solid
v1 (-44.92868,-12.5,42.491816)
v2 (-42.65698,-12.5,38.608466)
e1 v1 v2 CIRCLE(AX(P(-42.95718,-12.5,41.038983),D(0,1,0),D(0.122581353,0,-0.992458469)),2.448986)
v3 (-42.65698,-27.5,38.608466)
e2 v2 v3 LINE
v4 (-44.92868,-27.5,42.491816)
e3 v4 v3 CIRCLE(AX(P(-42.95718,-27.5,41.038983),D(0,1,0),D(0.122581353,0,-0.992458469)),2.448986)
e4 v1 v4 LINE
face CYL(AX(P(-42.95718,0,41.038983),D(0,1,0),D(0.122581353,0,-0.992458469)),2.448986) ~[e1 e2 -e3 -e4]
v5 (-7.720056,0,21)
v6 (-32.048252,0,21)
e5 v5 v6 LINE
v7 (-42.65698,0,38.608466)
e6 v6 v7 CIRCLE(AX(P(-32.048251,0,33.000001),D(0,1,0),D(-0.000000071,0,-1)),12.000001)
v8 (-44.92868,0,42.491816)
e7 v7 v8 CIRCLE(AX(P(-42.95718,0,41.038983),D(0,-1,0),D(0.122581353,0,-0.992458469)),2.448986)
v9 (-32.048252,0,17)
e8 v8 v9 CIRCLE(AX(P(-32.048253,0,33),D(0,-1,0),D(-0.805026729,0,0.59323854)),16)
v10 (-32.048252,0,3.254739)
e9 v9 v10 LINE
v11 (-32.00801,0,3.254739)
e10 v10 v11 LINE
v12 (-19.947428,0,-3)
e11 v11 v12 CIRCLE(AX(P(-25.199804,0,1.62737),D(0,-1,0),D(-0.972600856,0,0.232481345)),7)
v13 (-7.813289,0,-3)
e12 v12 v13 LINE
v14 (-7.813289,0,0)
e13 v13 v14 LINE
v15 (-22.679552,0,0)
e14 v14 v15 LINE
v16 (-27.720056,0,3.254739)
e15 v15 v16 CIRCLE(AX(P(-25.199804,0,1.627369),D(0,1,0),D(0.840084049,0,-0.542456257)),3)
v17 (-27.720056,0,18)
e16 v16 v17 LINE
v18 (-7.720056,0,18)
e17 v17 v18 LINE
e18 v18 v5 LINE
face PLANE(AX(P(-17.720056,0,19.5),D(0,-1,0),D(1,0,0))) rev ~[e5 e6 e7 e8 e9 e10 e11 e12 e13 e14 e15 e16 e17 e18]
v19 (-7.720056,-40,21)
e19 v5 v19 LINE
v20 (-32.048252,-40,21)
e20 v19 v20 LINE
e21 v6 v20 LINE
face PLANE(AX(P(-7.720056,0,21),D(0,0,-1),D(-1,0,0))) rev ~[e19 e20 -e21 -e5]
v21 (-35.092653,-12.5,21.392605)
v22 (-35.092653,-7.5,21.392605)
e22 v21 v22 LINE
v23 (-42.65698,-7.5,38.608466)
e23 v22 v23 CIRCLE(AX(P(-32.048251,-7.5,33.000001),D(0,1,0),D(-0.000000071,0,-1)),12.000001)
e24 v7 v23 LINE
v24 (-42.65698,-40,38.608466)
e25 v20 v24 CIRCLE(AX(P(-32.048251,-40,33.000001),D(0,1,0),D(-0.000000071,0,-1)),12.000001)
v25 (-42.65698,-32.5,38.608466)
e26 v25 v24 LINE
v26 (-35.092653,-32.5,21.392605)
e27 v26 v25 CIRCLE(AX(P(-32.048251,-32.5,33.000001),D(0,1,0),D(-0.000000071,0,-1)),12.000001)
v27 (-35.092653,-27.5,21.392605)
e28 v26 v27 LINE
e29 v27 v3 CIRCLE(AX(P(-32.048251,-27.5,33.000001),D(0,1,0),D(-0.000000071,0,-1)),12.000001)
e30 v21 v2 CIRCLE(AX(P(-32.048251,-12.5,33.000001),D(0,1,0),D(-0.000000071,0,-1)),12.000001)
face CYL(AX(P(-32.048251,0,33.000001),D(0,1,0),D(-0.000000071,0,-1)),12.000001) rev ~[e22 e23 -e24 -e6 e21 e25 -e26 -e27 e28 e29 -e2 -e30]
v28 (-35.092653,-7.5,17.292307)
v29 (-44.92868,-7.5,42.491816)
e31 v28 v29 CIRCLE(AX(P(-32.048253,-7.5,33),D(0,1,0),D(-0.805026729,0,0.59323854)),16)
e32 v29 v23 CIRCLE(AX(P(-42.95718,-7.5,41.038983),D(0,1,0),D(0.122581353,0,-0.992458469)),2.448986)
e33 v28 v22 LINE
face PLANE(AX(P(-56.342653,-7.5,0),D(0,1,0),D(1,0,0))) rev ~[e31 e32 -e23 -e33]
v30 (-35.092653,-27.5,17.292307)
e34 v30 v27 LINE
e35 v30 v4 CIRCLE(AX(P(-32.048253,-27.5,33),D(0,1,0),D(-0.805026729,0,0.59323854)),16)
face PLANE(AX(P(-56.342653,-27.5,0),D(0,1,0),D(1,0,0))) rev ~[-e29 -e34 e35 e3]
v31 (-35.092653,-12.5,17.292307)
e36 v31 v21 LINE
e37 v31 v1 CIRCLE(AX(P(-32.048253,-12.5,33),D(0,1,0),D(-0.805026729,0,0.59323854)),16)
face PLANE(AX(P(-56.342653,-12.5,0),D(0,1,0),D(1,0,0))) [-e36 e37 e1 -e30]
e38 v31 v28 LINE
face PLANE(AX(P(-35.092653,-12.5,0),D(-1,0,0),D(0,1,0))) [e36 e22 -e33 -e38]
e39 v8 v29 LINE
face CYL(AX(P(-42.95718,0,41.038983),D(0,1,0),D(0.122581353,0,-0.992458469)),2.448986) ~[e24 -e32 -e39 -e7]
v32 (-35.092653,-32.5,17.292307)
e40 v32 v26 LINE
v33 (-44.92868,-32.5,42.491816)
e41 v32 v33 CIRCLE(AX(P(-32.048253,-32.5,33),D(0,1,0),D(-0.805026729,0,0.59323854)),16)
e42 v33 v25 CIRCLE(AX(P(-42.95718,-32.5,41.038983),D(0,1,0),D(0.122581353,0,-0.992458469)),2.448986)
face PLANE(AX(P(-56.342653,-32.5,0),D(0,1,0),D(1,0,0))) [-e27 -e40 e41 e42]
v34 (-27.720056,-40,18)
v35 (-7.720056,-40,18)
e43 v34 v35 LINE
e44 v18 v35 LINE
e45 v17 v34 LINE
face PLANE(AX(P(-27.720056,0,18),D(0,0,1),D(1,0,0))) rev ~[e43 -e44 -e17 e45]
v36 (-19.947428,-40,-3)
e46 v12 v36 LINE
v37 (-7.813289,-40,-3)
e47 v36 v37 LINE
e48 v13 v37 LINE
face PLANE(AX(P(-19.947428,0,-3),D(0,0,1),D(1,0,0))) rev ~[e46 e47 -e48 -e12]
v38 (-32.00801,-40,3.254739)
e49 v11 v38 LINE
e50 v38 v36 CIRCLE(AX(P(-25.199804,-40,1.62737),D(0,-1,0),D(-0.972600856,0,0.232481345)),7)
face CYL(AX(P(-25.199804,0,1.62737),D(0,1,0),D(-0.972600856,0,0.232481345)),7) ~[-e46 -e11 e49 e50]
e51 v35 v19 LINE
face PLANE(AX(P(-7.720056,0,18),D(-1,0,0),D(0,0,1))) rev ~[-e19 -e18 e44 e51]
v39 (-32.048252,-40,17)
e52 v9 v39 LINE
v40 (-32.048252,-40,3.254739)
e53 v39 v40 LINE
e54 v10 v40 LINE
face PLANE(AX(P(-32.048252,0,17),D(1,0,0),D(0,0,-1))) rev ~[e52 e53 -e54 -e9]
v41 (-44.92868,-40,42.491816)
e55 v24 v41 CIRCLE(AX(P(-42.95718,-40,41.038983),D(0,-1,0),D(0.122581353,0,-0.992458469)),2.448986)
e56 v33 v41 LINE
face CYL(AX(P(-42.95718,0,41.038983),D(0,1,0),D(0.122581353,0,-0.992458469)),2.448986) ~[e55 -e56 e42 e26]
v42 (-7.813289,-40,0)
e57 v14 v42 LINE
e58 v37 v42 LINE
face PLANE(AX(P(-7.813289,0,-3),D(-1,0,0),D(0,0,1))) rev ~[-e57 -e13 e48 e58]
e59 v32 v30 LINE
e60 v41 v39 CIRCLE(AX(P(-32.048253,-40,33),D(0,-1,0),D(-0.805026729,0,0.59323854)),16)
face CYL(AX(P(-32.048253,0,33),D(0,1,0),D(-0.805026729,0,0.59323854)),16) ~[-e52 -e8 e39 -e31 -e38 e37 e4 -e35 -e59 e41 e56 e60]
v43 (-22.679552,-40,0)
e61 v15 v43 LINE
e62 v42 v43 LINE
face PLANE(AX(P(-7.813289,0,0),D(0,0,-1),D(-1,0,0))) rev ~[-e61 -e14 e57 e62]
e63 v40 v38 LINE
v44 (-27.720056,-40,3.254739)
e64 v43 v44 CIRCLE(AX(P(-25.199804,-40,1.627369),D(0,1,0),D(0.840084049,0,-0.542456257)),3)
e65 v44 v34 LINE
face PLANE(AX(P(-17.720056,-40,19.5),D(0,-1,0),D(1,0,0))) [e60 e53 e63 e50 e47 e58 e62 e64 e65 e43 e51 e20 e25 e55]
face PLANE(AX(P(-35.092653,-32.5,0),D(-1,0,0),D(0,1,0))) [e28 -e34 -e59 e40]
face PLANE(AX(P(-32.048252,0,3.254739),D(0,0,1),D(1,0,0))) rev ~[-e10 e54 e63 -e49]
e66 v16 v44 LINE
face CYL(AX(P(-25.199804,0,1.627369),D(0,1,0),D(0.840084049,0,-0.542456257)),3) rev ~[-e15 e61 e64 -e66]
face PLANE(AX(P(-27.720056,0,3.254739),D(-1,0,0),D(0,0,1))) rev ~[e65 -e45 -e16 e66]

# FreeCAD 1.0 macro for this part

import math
import FreeCAD as App
import Part
import Sketcher
from FreeCAD import Vector

doc = App.newDocument("Part")
body = doc.addObject("PartDesign::Body", "Body")

sketch1 = body.newObject("Sketcher::SketchObject", "Sketch")
sketch1.AttachmentSupport = (doc.getObject("XZ_Plane"), [""])
sketch1.MapMode = "FlatFace"
sketch1.addGeometry(Part.LineSegment(Vector(-27.72, 18, 0), Vector(-7.72, 18, 0)), False)
sketch1.addGeometry(Part.LineSegment(Vector(-7.72, 18, 0), Vector(-7.72, 21, 0)), False)
sketch1.addGeometry(Part.LineSegment(Vector(-7.72, 21, 0), Vector(-32.048, 21, 0)), False)
sketch1.addGeometry(Part.ArcOfCircle(Part.Circle(Vector(-32.048, 33, 0), Vector(0, 0, 1), 12), math.radians(152), math.radians(270)), False)
sketch1.addGeometry(Part.ArcOfCircle(Part.Circle(Vector(-42.957, 41.039, 0), Vector(0, 0, 1), 2.449), math.radians(-83), math.radians(144)), False)
sketch1.addGeometry(Part.ArcOfCircle(Part.Circle(Vector(-32.048, 33, 0), Vector(0, 0, 1), 16), math.radians(144), math.radians(270)), False)
sketch1.addGeometry(Part.LineSegment(Vector(-32.048, 17, 0), Vector(-32.048, 3.255, 0)), False)
sketch1.addGeometry(Part.LineSegment(Vector(-32.048, 3.255, 0), Vector(-32.008, 3.255, 0)), False)
sketch1.addGeometry(Part.ArcOfCircle(Part.Circle(Vector(-25.2, 1.627, 0), Vector(0, 0, 1), 7), math.radians(167), math.radians(319)), False)
sketch1.addGeometry(Part.LineSegment(Vector(-19.947, -3, 0), Vector(-7.813, -3, 0)), False)
sketch1.addGeometry(Part.LineSegment(Vector(-7.813, -3, 0), Vector(-7.813, 0, 0)), False)
sketch1.addGeometry(Part.LineSegment(Vector(-7.813, 0, 0), Vector(-22.68, 0, 0)), False)
sketch1.addGeometry(Part.ArcOfCircle(Part.Circle(Vector(-25.2, 1.627, 0), Vector(0, 0, 1), 3), math.radians(147), math.radians(327)), False)
sketch1.addGeometry(Part.LineSegment(Vector(-27.72, 3.255, 0), Vector(-27.72, 18, 0)), False)
sketch1.addConstraint(Sketcher.Constraint("Coincident", 0, 2, 1, 1))
sketch1.addConstraint(Sketcher.Constraint("Coincident", 1, 2, 2, 1))
sketch1.addConstraint(Sketcher.Constraint("Tangent", 2, 2, 3, 2))
sketch1.addConstraint(Sketcher.Constraint("Coincident", 3, 1, 4, 1))
sketch1.addConstraint(Sketcher.Constraint("Tangent", 4, 2, 5, 1))
sketch1.addConstraint(Sketcher.Constraint("Coincident", 5, 2, 6, 1))
sketch1.addConstraint(Sketcher.Constraint("Coincident", 6, 2, 7, 1))
sketch1.addConstraint(Sketcher.Constraint("Coincident", 7, 2, 8, 1))
sketch1.addConstraint(Sketcher.Constraint("Coincident", 8, 2, 9, 1))
sketch1.addConstraint(Sketcher.Constraint("Coincident", 9, 2, 10, 1))
sketch1.addConstraint(Sketcher.Constraint("Coincident", 10, 2, 11, 1))
sketch1.addConstraint(Sketcher.Constraint("Coincident", 11, 2, 12, 2))
sketch1.addConstraint(Sketcher.Constraint("Coincident", 12, 1, 13, 1))
sketch1.addConstraint(Sketcher.Constraint("Coincident", 13, 2, 0, 1))
sketch1.addConstraint(Sketcher.Constraint("Horizontal", 0))
sketch1.addConstraint(Sketcher.Constraint("Vertical", 1))
sketch1.addConstraint(Sketcher.Constraint("Horizontal", 2))
sketch1.addConstraint(Sketcher.Constraint("Vertical", 6))
sketch1.addConstraint(Sketcher.Constraint("Horizontal", 7))
sketch1.addConstraint(Sketcher.Constraint("Horizontal", 9))
sketch1.addConstraint(Sketcher.Constraint("Vertical", 10))
sketch1.addConstraint(Sketcher.Constraint("Horizontal", 11))
sketch1.addConstraint(Sketcher.Constraint("Vertical", 13))
sketch1.addConstraint(Sketcher.Constraint("Coincident", 5, 3, 3, 3))
sketch1.addConstraint(Sketcher.Constraint("Coincident", 12, 3, 8, 3))
sketch1.addConstraint(Sketcher.Constraint("PointOnObject", 10, 2, -1))
sketch1.addConstraint(Sketcher.Constraint("Horizontal", 7, 2, 12, 1))
sketch1.addConstraint(Sketcher.Constraint("Vertical", 2, 2, 5, 2))
sketch1.addConstraint(Sketcher.Constraint("Equal", 1, 10))
sketch1.addConstraint(Sketcher.Constraint("Radius", 3, 12.000001))
sketch1.addConstraint(Sketcher.Constraint("Radius", 5, 16.0))
sketch1.addConstraint(Sketcher.Constraint("Radius", 8, 7.0))
sketch1.addConstraint(Sketcher.Constraint("Radius", 12, 3.0))
sketch1.addConstraint(Sketcher.Constraint("DistanceX", 0, 1, 0, 2, 20.0))
sketch1.addConstraint(Sketcher.Constraint("DistanceY", 1, 1, 1, 2, 3.0))
sketch1.addConstraint(Sketcher.Constraint("DistanceY", -1, 1, 3, 3, 33.000001))
sketch1.addConstraint(Sketcher.Constraint("Radius", 4, 2.448986))
sketch1.addConstraint(Sketcher.Constraint("DistanceX", 7, 1, 7, 2, 0.040242))
sketch1.addConstraint(Sketcher.Constraint("DistanceX", 9, 1, 9, 2, 12.134139))
sketch1.addConstraint(Sketcher.Constraint("DistanceY", 6, 2, 6, 1, 13.745261))
sketch1.addConstraint(Sketcher.Constraint("DistanceX", 4, 3, 3, 1, 0.3002))
sketch1.addConstraint(Sketcher.Constraint("DistanceX", 6, 2, 11, 2, 9.3687))
sketch1.addConstraint(Sketcher.Constraint("DistanceX", 3, 3, -1, 1, 32.048251))
pad1 = body.newObject("PartDesign::Pad", "Pad")
pad1.Profile = sketch1
pad1.Length = 40

sketch2 = body.newObject("Sketcher::SketchObject", "Sketch001")
sketch2.AttachmentSupport = (doc.getObject("XY_Plane"), [""])
sketch2.MapMode = "FlatFace"
sketch2.addGeometry(Part.LineSegment(Vector(-56, -8, 0), Vector(-56, -12, 0)), False)
sketch2.addGeometry(Part.LineSegment(Vector(-56, -12, 0), Vector(-35, -12, 0)), False)
sketch2.addGeometry(Part.LineSegment(Vector(-35, -12, 0), Vector(-35, -8, 0)), False)
sketch2.addGeometry(Part.LineSegment(Vector(-35, -8, 0), Vector(-56, -8, 0)), False)
sketch2.addGeometry(Part.LineSegment(Vector(-56, -28, 0), Vector(-56, -32, 0)), False)
sketch2.addGeometry(Part.LineSegment(Vector(-56, -32, 0), Vector(-35, -32, 0)), False)
sketch2.addGeometry(Part.LineSegment(Vector(-35, -32, 0), Vector(-35, -28, 0)), False)
sketch2.addGeometry(Part.LineSegment(Vector(-35, -28, 0), Vector(-56, -28, 0)), False)
sketch2.addConstraint(Sketcher.Constraint("Coincident", 0, 2, 1, 1))
sketch2.addConstraint(Sketcher.Constraint("Coincident", 1, 2, 2, 1))
sketch2.addConstraint(Sketcher.Constraint("Coincident", 2, 2, 3, 1))
sketch2.addConstraint(Sketcher.Constraint("Coincident", 3, 2, 0, 1))
sketch2.addConstraint(Sketcher.Constraint("Coincident", 4, 2, 5, 1))
sketch2.addConstraint(Sketcher.Constraint("Coincident", 5, 2, 6, 1))
sketch2.addConstraint(Sketcher.Constraint("Coincident", 6, 2, 7, 1))
sketch2.addConstraint(Sketcher.Constraint("Coincident", 7, 2, 4, 1))
sketch2.addConstraint(Sketcher.Constraint("Vertical", 0))
sketch2.addConstraint(Sketcher.Constraint("Horizontal", 1))
sketch2.addConstraint(Sketcher.Constraint("Vertical", 2))
sketch2.addConstraint(Sketcher.Constraint("Horizontal", 3))
sketch2.addConstraint(Sketcher.Constraint("Vertical", 4))
sketch2.addConstraint(Sketcher.Constraint("Horizontal", 5))
sketch2.addConstraint(Sketcher.Constraint("Vertical", 6))
sketch2.addConstraint(Sketcher.Constraint("Horizontal", 7))
sketch2.addConstraint(Sketcher.Constraint("Vertical", 3, 2, 4, 2))
sketch2.addConstraint(Sketcher.Constraint("Vertical", 2, 2, 5, 2))
sketch2.addConstraint(Sketcher.Constraint("Equal", 2, 4))
sketch2.addConstraint(Sketcher.Constraint("DistanceY", 0, 2, 0, 1, 5.0))
sketch2.addConstraint(Sketcher.Constraint("DistanceY", 4, 2, 0, 2, 20.0))
sketch2.addConstraint(Sketcher.Constraint("DistanceX", 1, 1, 1, 2, 21.25))
sketch2.addConstraint(Sketcher.Constraint("DistanceY", 0, 2, -1, 1, 12.5))
sketch2.addConstraint(Sketcher.Constraint("DistanceX", 0, 2, -1, 1, 56.342653))
pocket1 = body.newObject("PartDesign::Pocket", "Pocket")
pocket1.Profile = sketch2
pocket1.Length = 50
pocket1.Reversed = True

doc.recompute()
